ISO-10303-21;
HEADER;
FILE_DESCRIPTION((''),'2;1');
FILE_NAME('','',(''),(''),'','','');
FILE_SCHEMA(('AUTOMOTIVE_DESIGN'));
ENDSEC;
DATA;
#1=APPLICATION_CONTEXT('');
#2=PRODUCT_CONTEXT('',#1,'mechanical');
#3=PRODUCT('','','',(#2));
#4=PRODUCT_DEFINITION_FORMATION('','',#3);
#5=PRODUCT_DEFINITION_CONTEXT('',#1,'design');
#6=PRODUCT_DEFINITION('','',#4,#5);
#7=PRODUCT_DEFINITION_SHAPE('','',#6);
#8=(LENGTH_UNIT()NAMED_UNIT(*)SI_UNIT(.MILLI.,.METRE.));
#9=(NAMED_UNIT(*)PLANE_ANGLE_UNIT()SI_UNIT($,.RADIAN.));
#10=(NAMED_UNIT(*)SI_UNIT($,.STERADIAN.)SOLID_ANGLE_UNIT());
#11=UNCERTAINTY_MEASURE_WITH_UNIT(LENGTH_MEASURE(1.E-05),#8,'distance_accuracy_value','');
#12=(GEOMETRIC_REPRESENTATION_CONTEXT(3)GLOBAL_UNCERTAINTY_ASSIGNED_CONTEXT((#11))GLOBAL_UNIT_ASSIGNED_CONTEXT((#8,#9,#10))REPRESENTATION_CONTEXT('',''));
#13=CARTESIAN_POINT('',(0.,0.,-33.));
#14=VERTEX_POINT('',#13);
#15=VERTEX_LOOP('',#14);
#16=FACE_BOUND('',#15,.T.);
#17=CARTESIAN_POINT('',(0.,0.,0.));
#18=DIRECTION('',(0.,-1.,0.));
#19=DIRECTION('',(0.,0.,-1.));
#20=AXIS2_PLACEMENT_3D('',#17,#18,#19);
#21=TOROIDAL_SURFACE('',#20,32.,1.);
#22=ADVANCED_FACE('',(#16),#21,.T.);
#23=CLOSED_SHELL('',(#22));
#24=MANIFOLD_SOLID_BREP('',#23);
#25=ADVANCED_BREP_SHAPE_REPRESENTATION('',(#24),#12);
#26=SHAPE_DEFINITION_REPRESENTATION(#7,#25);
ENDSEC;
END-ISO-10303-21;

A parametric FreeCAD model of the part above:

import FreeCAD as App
import Part
import Sketcher

doc = App.newDocument("Part")
body = doc.addObject("PartDesign::Body", "Body")

# Sketch on XY plane
sketch1 = doc.addObject("Sketcher::SketchObject", "Sketch")
body.addObject(sketch1)
sketch1.AttachmentSupport = (doc.XY_Plane, [""])
sketch1.MapMode = "FlatFace"
sketch1.addGeometry(Part.Circle(App.Vector(32, 0, 0), App.Vector(0, 0, 1), 1), False)
sketch1.addConstraint([
    Sketcher.Constraint("PointOnObject", 0, 3, -1),
    Sketcher.Constraint("Diameter", 0, 2.0),
    Sketcher.Constraint("DistanceX", -1, 1, 0, 3, 32.0),
])
revolution = doc.addObject("PartDesign::Revolution", "Revolution")
body.addObject(revolution)
revolution.Profile = sketch1
revolution.ReferenceAxis = (sketch1, ["V_Axis"])
revolution.Angle = 360

doc.recompute()
